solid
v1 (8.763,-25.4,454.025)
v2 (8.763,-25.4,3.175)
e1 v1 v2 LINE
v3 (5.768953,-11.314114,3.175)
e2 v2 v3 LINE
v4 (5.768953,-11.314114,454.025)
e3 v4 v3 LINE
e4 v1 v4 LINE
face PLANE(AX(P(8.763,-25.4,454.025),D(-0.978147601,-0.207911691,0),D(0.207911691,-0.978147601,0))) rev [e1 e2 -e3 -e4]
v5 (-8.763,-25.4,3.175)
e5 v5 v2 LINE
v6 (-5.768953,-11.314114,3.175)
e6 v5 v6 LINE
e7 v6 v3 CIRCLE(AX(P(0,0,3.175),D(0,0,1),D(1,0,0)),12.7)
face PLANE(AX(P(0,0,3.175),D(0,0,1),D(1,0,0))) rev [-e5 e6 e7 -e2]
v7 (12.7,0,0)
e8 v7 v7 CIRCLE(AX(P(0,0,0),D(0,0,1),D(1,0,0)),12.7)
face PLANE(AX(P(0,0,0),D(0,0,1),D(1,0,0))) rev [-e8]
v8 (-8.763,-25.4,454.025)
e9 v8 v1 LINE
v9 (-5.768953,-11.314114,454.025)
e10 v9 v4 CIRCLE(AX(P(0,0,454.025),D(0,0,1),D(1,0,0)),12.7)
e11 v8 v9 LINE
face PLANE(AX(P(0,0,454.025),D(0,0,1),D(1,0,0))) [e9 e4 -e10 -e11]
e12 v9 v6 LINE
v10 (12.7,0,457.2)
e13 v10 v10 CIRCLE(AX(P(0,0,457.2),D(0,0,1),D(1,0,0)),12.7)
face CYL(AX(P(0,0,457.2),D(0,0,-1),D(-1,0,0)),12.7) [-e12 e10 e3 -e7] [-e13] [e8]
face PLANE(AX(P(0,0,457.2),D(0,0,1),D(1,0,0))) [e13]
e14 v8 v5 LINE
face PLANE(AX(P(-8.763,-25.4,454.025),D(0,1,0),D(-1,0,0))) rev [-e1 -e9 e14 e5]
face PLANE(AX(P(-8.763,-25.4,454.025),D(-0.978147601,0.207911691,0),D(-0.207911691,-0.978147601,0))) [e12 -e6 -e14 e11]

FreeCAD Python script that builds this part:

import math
import FreeCAD as App
import Part
import Sketcher
Q = App.Units.Quantity

doc = App.newDocument("Part")
body = doc.addObject("PartDesign::Body", "Body")

# Sketch on XY plane
sketch1 = body.newObject("Sketcher::SketchObject", "Sketch")
sketch1.AttachmentSupport = (doc.getObject("XY_Plane"), [""])
sketch1.MapMode = "FlatFace"
sketch1.addGeometry(Part.Circle(App.Vector(0, 0, 0), App.Vector(0, 0, 1), 13), False)
sketch1.addConstraint([
    Sketcher.Constraint("Coincident", 0, 3, -1, 1),
    Sketcher.Constraint("Diameter", 0, Q("1 in")),
])
pad1 = body.newObject("PartDesign::Pad", "Pad")
pad1.Profile = sketch1
pad1.Length = Q("18 in")

# Sketch on XY plane
sketch2 = body.newObject("Sketcher::SketchObject", "Sketch001")
sketch2.AttachmentSupport = (doc.getObject("XY_Plane"), [""])
sketch2.MapMode = "FlatFace"
sketch2.AttachmentOffset = App.Placement(App.Vector(0, 0, 0.125 * 25.4), App.Rotation())
sketch2.addGeometry([
    Part.LineSegment(App.Vector(-9, -25, 0), App.Vector(9, -25, 0)),
    Part.LineSegment(App.Vector(9, -25, 0), App.Vector(6, -11, 0)),
    Part.ArcOfCircle(Part.Circle(App.Vector(0, 0, 0), App.Vector(0, 0, 1), 13), math.radians(-117), math.radians(-63)),
    Part.LineSegment(App.Vector(-6, -11, 0), App.Vector(-9, -25, 0)),
], False)
sketch2.addConstraint([
    Sketcher.Constraint("Coincident", 0, 2, 1, 1),
    Sketcher.Constraint("Coincident", 1, 2, 2, 2),
    Sketcher.Constraint("Coincident", 2, 1, 3, 1),
    Sketcher.Constraint("Coincident", 3, 2, 0, 1),
    Sketcher.Constraint("Horizontal", 0),
    Sketcher.Constraint("Coincident", 2, 3, -1, 1),
    Sketcher.Constraint("Horizontal", 1, 2, 2, 1),
    Sketcher.Constraint("Equal", 1, 3),
    Sketcher.Constraint("Radius", 2, Q("0.5 in")),
    Sketcher.Constraint("DistanceY", 0, 2, -1, 1, Q("1 in")),
    Sketcher.Constraint("Angle", 1, Q("102 deg")),
    Sketcher.Constraint("DistanceX", 0, 1, 0, 2, Q("0.69 in")),
])
pad2 = body.newObject("PartDesign::Pad", "Pad001")
pad2.Profile = sketch2
pad2.Length = Q("17.75 in")

doc.recompute()
